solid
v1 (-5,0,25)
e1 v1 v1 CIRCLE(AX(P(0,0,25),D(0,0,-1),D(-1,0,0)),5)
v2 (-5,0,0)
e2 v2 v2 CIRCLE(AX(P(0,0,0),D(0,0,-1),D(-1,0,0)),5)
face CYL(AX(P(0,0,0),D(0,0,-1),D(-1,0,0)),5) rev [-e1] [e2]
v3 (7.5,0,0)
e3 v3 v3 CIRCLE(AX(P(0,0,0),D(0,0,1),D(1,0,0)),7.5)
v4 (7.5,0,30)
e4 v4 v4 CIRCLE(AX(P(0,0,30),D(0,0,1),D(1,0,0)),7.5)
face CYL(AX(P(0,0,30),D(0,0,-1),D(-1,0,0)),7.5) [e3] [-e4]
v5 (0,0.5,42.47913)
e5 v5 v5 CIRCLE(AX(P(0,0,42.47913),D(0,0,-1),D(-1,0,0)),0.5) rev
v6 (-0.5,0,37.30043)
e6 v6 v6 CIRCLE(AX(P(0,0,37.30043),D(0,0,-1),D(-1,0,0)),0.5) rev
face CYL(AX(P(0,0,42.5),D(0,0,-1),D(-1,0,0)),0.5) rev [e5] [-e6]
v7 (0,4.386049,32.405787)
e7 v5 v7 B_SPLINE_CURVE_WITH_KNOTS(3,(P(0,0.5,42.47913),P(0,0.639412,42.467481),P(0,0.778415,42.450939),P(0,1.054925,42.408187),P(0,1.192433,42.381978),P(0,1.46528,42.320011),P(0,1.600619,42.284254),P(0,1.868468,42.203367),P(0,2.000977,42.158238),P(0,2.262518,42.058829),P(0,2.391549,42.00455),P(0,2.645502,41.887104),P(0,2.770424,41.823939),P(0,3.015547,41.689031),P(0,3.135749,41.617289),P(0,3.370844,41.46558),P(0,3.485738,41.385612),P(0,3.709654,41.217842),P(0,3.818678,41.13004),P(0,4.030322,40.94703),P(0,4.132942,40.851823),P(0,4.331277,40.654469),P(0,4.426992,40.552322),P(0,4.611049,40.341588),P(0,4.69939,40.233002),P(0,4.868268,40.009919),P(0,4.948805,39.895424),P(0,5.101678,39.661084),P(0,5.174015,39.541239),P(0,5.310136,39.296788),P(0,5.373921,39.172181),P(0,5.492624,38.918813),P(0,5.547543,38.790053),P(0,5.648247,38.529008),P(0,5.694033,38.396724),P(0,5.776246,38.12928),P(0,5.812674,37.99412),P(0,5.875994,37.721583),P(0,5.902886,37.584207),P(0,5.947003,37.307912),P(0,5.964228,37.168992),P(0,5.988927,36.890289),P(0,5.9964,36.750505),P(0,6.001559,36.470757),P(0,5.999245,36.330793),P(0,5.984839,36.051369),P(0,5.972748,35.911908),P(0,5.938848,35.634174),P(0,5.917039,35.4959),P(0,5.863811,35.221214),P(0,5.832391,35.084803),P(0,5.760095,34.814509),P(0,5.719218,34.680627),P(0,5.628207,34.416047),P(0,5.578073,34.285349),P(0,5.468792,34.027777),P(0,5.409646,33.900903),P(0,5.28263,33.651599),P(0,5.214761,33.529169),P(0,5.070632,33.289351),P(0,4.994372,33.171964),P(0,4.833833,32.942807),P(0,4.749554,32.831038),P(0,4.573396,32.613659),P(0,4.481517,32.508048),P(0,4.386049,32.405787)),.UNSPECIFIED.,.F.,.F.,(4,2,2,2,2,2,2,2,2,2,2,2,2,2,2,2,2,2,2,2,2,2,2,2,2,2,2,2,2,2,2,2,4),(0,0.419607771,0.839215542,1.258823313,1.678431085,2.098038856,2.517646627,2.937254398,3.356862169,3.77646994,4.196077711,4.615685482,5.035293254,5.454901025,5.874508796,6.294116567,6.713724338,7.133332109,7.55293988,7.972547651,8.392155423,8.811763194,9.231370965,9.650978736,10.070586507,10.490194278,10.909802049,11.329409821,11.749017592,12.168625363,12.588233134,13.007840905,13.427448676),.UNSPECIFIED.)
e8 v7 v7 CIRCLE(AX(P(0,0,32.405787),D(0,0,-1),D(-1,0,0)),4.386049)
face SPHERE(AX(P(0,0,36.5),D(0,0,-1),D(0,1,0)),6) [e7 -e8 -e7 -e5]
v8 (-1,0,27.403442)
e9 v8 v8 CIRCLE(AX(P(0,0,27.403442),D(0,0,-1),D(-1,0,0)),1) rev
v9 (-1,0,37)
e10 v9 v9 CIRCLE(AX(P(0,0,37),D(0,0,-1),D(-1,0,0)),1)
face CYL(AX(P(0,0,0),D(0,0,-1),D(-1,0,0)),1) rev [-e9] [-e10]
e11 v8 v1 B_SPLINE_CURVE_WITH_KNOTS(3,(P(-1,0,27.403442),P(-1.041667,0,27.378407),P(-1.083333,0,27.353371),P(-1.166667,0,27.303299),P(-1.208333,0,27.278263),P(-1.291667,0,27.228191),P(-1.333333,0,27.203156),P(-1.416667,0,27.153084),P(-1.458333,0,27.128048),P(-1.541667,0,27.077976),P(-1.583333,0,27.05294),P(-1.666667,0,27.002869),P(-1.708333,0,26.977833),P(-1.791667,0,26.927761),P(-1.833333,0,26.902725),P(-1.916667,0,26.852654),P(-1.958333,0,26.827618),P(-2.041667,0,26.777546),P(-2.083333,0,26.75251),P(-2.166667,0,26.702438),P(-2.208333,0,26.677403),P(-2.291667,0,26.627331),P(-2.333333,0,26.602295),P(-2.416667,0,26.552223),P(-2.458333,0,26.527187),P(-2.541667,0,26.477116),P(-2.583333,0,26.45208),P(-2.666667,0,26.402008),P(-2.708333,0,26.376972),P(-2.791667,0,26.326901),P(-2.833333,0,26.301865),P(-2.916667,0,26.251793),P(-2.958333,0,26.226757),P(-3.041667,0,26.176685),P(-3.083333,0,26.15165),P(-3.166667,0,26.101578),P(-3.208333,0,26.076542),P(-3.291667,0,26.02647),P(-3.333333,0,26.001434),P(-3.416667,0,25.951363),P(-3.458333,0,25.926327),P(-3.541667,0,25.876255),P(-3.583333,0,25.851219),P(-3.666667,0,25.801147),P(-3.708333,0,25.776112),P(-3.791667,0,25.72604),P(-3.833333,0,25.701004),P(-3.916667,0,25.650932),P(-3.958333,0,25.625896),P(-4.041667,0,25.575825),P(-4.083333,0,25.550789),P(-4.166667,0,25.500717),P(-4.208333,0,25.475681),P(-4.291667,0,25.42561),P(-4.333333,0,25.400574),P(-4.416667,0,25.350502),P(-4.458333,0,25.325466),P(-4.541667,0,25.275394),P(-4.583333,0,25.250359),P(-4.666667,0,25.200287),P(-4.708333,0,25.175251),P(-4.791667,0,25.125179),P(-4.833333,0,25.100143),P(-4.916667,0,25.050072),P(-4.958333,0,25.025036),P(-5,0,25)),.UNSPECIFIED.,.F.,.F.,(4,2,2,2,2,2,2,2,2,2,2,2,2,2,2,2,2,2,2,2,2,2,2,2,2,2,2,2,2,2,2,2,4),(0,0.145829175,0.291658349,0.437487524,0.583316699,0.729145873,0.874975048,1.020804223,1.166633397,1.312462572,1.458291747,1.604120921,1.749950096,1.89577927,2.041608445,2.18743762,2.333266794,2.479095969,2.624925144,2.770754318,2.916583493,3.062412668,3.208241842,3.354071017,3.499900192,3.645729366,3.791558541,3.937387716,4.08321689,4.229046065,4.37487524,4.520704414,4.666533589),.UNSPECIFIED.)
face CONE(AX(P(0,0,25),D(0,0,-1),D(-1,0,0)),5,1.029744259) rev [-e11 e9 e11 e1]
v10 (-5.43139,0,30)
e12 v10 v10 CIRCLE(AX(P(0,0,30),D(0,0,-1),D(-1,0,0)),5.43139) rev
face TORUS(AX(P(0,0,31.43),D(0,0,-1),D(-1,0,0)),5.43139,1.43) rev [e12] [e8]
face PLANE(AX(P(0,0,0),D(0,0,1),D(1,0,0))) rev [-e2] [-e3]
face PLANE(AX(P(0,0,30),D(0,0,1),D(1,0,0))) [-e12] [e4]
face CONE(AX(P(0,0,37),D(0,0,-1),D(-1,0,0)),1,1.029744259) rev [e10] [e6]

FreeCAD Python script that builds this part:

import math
import FreeCAD as App
import Part
import Sketcher
Q = App.Units.Quantity

doc = App.newDocument("Part")
body = doc.addObject("PartDesign::Body", "Body")

# Sketch on XY plane
sketch1 = body.newObject("Sketcher::SketchObject", "Sketch")
sketch1.AttachmentSupport = (doc.getObject("XY_Plane"), [""])
sketch1.MapMode = "FlatFace"
sketch1.addGeometry(Part.Circle(App.Vector(0, 0, 0), App.Vector(0, 0, 1), 8), False)
sketch1.addConstraint([
    Sketcher.Constraint("Coincident", 0, 3, -1, 1),
    Sketcher.Constraint("Diameter", 0, Q("15 mm")),
])
pad1 = body.newObject("PartDesign::Pad", "Pad")
pad1.Profile = sketch1
pad1.Length = 30

# Sketch on YZ plane
sketch2 = body.newObject("Sketcher::SketchObject", "Sketch001")
sketch2.AttachmentSupport = (doc.getObject("YZ_Plane"), [""])
sketch2.MapMode = "FlatFace"
sketch2.addGeometry([
    Part.LineSegment(App.Vector(0, 30, 0), App.Vector(5.4, 30, 0)),
    Part.ArcOfCircle(Part.Circle(App.Vector(5.4, 31.4, 0), App.Vector(0, 0, 1), 1.4), math.radians(137), math.radians(270)),
    Part.ArcOfCircle(Part.Circle(App.Vector(0, 36.5, 0), App.Vector(0, 0, 1), 6), math.radians(-43), math.radians(90)),
    Part.LineSegment(App.Vector(0, 42.5, 0), App.Vector(0, 30, 0)),
], False)
sketch2.addConstraint([
    Sketcher.Constraint("Tangent", 0, 2, 1, 2),
    Sketcher.Constraint("Tangent", 1, 1, 2, 1),
    Sketcher.Constraint("Coincident", 2, 2, 3, 1),
    Sketcher.Constraint("Coincident", 3, 2, 0, 1),
    Sketcher.Constraint("Horizontal", 0),
    Sketcher.Constraint("Vertical", 3),
    Sketcher.Constraint("PointOnObject", 2, 3, -2),
    Sketcher.Constraint("PointOnObject", 2, 2, -2),
    Sketcher.Constraint("Radius", 2, Q("6 mm")),
    Sketcher.Constraint("Radius", 1, Q("1.43 mm")),
    Sketcher.Constraint("DistanceY", 3, 2, 3, 1, Q("12.5 mm")),
    Sketcher.Constraint("DistanceY", -1, 1, 0, 2, Q("30 mm")),
])
revolution = body.newObject("PartDesign::Revolution", "Revolution")
revolution.Profile = sketch2
revolution.ReferenceAxis = (sketch2, ["V_Axis"])
revolution.Angle = 360

# Sketch on XY plane
sketch3 = body.newObject("Sketcher::SketchObject", "Sketch002")
sketch3.AttachmentSupport = (doc.getObject("XY_Plane"), [""])
sketch3.MapMode = "FlatFace"
sketch3.addGeometry(Part.Circle(App.Vector(0, 0, 0), App.Vector(0, 0, 1), 5), False)
sketch3.addConstraint([
    Sketcher.Constraint("Coincident", 0, 3, -1, 1),
    Sketcher.Constraint("Diameter", 0, Q("10 mm")),
])
doc.recompute()
hole = body.newObject("PartDesign::Hole", "Hole")
hole.Profile = sketch3
hole.ThreadType = "None"
hole.Diameter = 10
hole.DepthType = "Dimension"
hole.Depth = 25
hole.DrillPoint = "Angled"
hole.DrillPointAngle = 118
hole.Reversed = True

# Sketch on XY plane
sketch4 = body.newObject("Sketcher::SketchObject", "Sketch003")
sketch4.AttachmentSupport = (doc.getObject("XY_Plane"), [""])
sketch4.MapMode = "FlatFace"
sketch4.addGeometry(Part.Circle(App.Vector(0, 0, 0), App.Vector(0, 0, 1), 1), False)
sketch4.addConstraint([
    Sketcher.Constraint("Coincident", 0, 3, -1, 1),
    Sketcher.Constraint("Diameter", 0, Q("2 mm")),
])
doc.recompute()
hole2 = body.newObject("PartDesign::Hole", "Hole001")
hole2.Profile = sketch4
hole2.ThreadType = "None"
hole2.Diameter = 2
hole2.DepthType = "Dimension"
hole2.Depth = 37
hole2.DrillPoint = "Angled"
hole2.DrillPointAngle = 118
hole2.Reversed = True

# Sketch on XY plane
sketch5 = body.newObject("Sketcher::SketchObject", "Sketch004")
sketch5.AttachmentSupport = (doc.getObject("XY_Plane"), [""])
sketch5.MapMode = "FlatFace"
sketch5.addGeometry(Part.Circle(App.Vector(0, 0, 0), App.Vector(0, 0, 1), 0.5), False)
sketch5.addConstraint([
    Sketcher.Constraint("Coincident", 0, 3, -1, 1),
    Sketcher.Constraint("Diameter", 0, Q("1 mm")),
])
pocket1 = body.newObject("PartDesign::Pocket", "Pocket")
pocket1.Profile = sketch5
pocket1.Type = "ThroughAll"
pocket1.Reversed = True

doc.recompute()
